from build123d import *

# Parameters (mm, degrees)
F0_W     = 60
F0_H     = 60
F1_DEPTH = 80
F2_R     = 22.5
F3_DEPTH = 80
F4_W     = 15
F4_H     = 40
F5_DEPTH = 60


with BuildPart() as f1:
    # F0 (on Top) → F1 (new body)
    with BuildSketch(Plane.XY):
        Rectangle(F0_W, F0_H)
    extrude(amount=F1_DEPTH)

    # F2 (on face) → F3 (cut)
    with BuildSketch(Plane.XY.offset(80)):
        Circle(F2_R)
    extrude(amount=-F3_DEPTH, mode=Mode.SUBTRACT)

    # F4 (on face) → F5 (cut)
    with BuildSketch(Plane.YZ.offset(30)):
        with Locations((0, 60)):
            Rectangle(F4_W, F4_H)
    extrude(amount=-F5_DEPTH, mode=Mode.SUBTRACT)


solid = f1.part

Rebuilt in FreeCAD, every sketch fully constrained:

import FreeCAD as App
import Part
import Sketcher
Q = App.Units.Quantity

doc = App.newDocument("Part")
body = doc.addObject("PartDesign::Body", "Body")

sketch1 = body.newObject("Sketcher::SketchObject", "Sketch")
sketch1.AttachmentSupport = (doc.getObject("XY_Plane"), [""])
sketch1.MapMode = "FlatFace"
sketch1.addGeometry(Part.LineSegment(App.Vector(-30, 30, 0), App.Vector(-30, -30, 0)), False)
sketch1.addGeometry(Part.LineSegment(App.Vector(-30, -30, 0), App.Vector(30, -30, 0)), False)
sketch1.addGeometry(Part.LineSegment(App.Vector(30, -30, 0), App.Vector(30, 30, 0)), False)
sketch1.addGeometry(Part.LineSegment(App.Vector(30, 30, 0), App.Vector(-30, 30, 0)), False)
sketch1.addConstraint(Sketcher.Constraint("Coincident", 0, 2, 1, 1))
sketch1.addConstraint(Sketcher.Constraint("Coincident", 1, 2, 2, 1))
sketch1.addConstraint(Sketcher.Constraint("Coincident", 2, 2, 3, 1))
sketch1.addConstraint(Sketcher.Constraint("Coincident", 3, 2, 0, 1))
sketch1.addConstraint(Sketcher.Constraint("Vertical", 0))
sketch1.addConstraint(Sketcher.Constraint("Horizontal", 1))
sketch1.addConstraint(Sketcher.Constraint("Vertical", 2))
sketch1.addConstraint(Sketcher.Constraint("Horizontal", 3))
sketch1.addConstraint(Sketcher.Constraint("Symmetric", 0, 2, 2, 2, -1, 1))
sketch1.addConstraint(Sketcher.Constraint("Equal", 3, 0))
sketch1.addConstraint(Sketcher.Constraint("DistanceX", 1, 1, 1, 2, Q("60 mm")))
pad1 = body.newObject("PartDesign::Pad", "Pad")
pad1.Profile = sketch1
pad1.Length = 80

sketch2 = body.newObject("Sketcher::SketchObject", "Sketch001")
sketch2.AttachmentSupport = (doc.getObject("XY_Plane"), [""])
sketch2.MapMode = "FlatFace"
sketch2.AttachmentOffset = App.Placement(App.Vector(0, 0, 80), App.Rotation())
sketch2.addGeometry(Part.Circle(App.Vector(0, 0, 0), App.Vector(0, 0, 1), 22.5), False)
sketch2.addConstraint(Sketcher.Constraint("Coincident", 0, 3, -1, 1))
sketch2.addConstraint(Sketcher.Constraint("Diameter", 0, Q("45 mm")))
pocket1 = body.newObject("PartDesign::Pocket", "Pocket")
pocket1.Profile = sketch2
pocket1.Length = 80

sketch3 = body.newObject("Sketcher::SketchObject", "Sketch002")
sketch3.AttachmentSupport = (doc.getObject("YZ_Plane"), [""])
sketch3.MapMode = "FlatFace"
sketch3.AttachmentOffset = App.Placement(App.Vector(0, 0, 30), App.Rotation())
sketch3.addGeometry(Part.LineSegment(App.Vector(-7.5, 80, 0), App.Vector(-7.5, 40, 0)), False)
sketch3.addGeometry(Part.LineSegment(App.Vector(-7.5, 40, 0), App.Vector(7.5, 40, 0)), False)
sketch3.addGeometry(Part.LineSegment(App.Vector(7.5, 40, 0), App.Vector(7.5, 80, 0)), False)
sketch3.addGeometry(Part.LineSegment(App.Vector(7.5, 80, 0), App.Vector(-7.5, 80, 0)), False)
sketch3.addConstraint(Sketcher.Constraint("Coincident", 0, 2, 1, 1))
sketch3.addConstraint(Sketcher.Constraint("Coincident", 1, 2, 2, 1))
sketch3.addConstraint(Sketcher.Constraint("Coincident", 2, 2, 3, 1))
sketch3.addConstraint(Sketcher.Constraint("Coincident", 3, 2, 0, 1))
sketch3.addConstraint(Sketcher.Constraint("Vertical", 0))
sketch3.addConstraint(Sketcher.Constraint("Horizontal", 1))
sketch3.addConstraint(Sketcher.Constraint("Vertical", 2))
sketch3.addConstraint(Sketcher.Constraint("Horizontal", 3))
sketch3.addConstraint(Sketcher.Constraint("DistanceX", 1, 1, 1, 2, Q("15 mm")))
sketch3.addConstraint(Sketcher.Constraint("DistanceY", 0, 2, 0, 1, Q("40 mm")))
sketch3.addConstraint(Sketcher.Constraint("DistanceY", -1, 1, 0, 2, Q("40 mm")))
sketch3.addConstraint(Sketcher.Constraint("DistanceX", 0, 2, -1, 1, Q("7.5 mm")))
pocket2 = body.newObject("PartDesign::Pocket", "Pocket001")
pocket2.Profile = sketch3
pocket2.Length = 60

doc.recompute()
